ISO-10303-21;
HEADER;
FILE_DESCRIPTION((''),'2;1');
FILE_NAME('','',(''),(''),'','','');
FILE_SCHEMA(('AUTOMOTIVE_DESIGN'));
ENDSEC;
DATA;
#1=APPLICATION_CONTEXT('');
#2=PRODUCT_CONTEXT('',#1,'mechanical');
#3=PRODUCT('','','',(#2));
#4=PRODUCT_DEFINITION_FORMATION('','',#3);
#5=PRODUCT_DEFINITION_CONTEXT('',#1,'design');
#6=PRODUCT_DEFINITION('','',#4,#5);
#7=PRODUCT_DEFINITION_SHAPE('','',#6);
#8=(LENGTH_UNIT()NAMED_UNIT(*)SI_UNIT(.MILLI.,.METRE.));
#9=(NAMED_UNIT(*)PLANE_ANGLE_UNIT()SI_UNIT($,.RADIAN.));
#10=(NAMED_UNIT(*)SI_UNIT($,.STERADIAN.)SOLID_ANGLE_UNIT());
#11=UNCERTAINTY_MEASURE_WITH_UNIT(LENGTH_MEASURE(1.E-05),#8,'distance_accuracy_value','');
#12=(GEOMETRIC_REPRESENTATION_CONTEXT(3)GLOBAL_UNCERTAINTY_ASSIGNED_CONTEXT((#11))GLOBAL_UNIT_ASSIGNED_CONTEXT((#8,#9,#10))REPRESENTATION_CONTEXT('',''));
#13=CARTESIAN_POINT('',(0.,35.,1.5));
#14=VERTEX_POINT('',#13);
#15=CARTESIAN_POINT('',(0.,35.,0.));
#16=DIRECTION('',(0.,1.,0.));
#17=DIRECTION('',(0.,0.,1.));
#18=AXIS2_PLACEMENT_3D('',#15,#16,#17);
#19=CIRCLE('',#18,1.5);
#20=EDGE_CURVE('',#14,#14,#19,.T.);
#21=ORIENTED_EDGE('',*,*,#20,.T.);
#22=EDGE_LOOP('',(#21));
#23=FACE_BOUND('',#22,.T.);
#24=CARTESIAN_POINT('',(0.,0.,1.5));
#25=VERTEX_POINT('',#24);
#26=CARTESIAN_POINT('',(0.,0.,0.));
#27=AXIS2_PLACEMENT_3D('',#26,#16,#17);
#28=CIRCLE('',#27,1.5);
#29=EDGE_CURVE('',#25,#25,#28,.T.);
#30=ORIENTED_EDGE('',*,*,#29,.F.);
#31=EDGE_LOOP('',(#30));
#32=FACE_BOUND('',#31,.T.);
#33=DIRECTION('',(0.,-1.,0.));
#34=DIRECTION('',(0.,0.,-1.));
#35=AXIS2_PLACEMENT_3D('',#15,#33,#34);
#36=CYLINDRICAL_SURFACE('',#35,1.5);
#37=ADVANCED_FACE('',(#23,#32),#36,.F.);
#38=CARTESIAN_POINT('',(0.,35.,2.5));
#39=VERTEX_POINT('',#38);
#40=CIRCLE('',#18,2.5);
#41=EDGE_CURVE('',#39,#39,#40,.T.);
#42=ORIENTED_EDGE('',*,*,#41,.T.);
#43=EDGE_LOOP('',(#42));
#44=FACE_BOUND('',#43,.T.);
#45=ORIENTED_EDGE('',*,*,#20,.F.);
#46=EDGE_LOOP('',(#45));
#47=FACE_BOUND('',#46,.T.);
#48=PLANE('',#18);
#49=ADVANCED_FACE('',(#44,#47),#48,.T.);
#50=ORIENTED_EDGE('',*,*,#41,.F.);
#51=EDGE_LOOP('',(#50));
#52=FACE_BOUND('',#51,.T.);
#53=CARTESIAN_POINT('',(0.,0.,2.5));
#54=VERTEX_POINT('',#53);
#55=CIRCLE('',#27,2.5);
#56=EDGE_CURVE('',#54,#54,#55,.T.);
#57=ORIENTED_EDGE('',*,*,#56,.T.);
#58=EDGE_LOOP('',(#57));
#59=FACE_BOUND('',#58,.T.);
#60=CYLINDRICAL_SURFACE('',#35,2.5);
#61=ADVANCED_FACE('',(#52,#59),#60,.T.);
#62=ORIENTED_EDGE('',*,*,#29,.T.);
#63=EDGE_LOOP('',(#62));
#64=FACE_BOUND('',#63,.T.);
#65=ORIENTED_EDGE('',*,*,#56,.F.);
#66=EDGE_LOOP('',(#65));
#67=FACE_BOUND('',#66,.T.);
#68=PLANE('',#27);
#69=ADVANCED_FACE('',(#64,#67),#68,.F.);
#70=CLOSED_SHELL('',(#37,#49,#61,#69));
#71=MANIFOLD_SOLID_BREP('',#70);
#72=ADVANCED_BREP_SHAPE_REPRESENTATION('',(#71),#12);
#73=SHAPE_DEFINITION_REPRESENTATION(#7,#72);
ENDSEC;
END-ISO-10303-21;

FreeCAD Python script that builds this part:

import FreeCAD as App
import Part
import Sketcher

doc = App.newDocument("Part")
body = doc.addObject("PartDesign::Body", "Body")

sketch1 = doc.addObject("Sketcher::SketchObject", "Sketch")
body.addObject(sketch1)
sketch1.AttachmentSupport = (doc.XZ_Plane, [""])
sketch1.MapMode = "FlatFace"
sketch1.addGeometry([
    Part.Circle(App.Vector(0, 0, 0), App.Vector(0, 0, 1), 2.5),
    Part.Circle(App.Vector(0, 0, 0), App.Vector(0, 0, 1), 1.5),
], False)
sketch1.addConstraint([
    Sketcher.Constraint("Coincident", 0, 3, -1, 1),
    Sketcher.Constraint("Coincident", 1, 3, -1, 1),
    Sketcher.Constraint("Diameter", 0, 5.0),
    Sketcher.Constraint("Diameter", 1, 3.0),
])
pad1 = doc.addObject("PartDesign::Pad", "Pad")
body.addObject(pad1)
pad1.Profile = sketch1
pad1.Length = 35
pad1.Reversed = True

doc.recompute()
